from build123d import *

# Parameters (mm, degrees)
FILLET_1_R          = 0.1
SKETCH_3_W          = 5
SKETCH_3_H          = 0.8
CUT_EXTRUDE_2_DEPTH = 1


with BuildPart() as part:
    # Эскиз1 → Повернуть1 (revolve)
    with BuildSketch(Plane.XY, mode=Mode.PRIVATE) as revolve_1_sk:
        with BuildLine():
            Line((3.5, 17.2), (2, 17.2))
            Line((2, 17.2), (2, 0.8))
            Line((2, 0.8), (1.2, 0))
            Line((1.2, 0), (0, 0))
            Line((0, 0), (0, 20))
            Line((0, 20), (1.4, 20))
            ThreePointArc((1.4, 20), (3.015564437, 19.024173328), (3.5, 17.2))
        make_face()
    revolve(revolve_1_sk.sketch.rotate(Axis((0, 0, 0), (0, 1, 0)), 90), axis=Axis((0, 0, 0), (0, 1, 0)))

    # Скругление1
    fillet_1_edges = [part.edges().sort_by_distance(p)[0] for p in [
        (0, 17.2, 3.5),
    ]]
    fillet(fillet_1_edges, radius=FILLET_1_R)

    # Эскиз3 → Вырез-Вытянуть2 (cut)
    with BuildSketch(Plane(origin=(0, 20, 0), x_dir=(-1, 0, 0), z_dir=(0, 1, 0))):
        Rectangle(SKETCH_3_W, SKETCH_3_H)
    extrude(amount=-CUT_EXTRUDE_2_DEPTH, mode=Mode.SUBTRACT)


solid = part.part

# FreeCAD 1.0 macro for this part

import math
import FreeCAD as App
import Part
import Sketcher
from FreeCAD import Vector
Q = App.Units.Quantity


def edges_at(feature, points):
    """Names of the edges that pass closest to the given points."""
    edges = feature.Shape.Edges
    near = lambda p: min(range(len(edges)), key=lambda i: edges[i].distToShape(Part.Vertex(*p))[0])
    return sorted({f"Edge{near(p) + 1}" for p in points})

doc = App.newDocument("Part")
body = doc.addObject("PartDesign::Body", "Body")

# Sketch on XY plane
sketch1 = body.newObject("Sketcher::SketchObject", "Sketch")
sketch1.AttachmentSupport = (doc.getObject("XY_Plane"), [""])
sketch1.MapMode = "FlatFace"
sketch1.addGeometry([
    Part.LineSegment(Vector(2, 17.2, 0), Vector(3.5, 17.2, 0)),  # 0
    Part.ArcOfCircle(Part.Circle(Vector(1, 17.5, 0), Vector(0, 0, 1), 2.5), math.radians(-7), math.radians(81)),  # 1
    Part.LineSegment(Vector(1.4, 20, 0), Vector(0, 20, 0)),  # 2
    Part.LineSegment(Vector(0, 20, 0), Vector(0, 0, 0)),  # 3
    Part.LineSegment(Vector(0, 0, 0), Vector(1.2, 0, 0)),  # 4
    Part.LineSegment(Vector(1.2, 0, 0), Vector(2, 0.8, 0)),  # 5
    Part.LineSegment(Vector(2, 0.8, 0), Vector(2, 17.2, 0)),  # 6
], False)
sketch1.addConstraint([
    Sketcher.Constraint("Coincident", 0, 2, 1, 1),
    Sketcher.Constraint("Coincident", 1, 2, 2, 1),
    Sketcher.Constraint("Coincident", 2, 2, 3, 1),
    Sketcher.Constraint("Coincident", 3, 2, 4, 1),
    Sketcher.Constraint("Coincident", 4, 2, 5, 1),
    Sketcher.Constraint("Coincident", 5, 2, 6, 1),
    Sketcher.Constraint("Coincident", 6, 2, 0, 1),
    Sketcher.Constraint("Horizontal", 0),
    Sketcher.Constraint("Horizontal", 2),
    Sketcher.Constraint("Vertical", 3),
    Sketcher.Constraint("Horizontal", 4),
    Sketcher.Constraint("Vertical", 6),
    Sketcher.Constraint("Coincident", 3, 2, -1, 1),
    Sketcher.Constraint("DistanceY", 3, 2, 3, 1, Q("20 mm")),
    Sketcher.Constraint("Angle", 5, Q("45 deg")),
    Sketcher.Constraint("DistanceX", 0, 1, 0, 2, Q("1.5 mm")),
    Sketcher.Constraint("DistanceX", 2, 2, 2, 1, Q("1.4 mm")),
    Sketcher.Constraint("DistanceX", 4, 1, 4, 2, Q("1.2 mm")),
    Sketcher.Constraint("DistanceY", 6, 1, 6, 2, Q("16.4 mm")),
    Sketcher.Constraint("DistanceX", -1, 1, 1, 3, Q("1 mm")),
    Sketcher.Constraint("DistanceX", -1, 1, 5, 2, Q("2 mm")),
])
revolution = body.newObject("PartDesign::Revolution", "Revolution")
revolution.Profile = sketch1
revolution.ReferenceAxis = (sketch1, ["V_Axis"])
revolution.Angle = 360
doc.recompute()

fillet = body.newObject("PartDesign::Fillet", "Fillet")
fillet.Base = (revolution, edges_at(revolution, [(0, 17.2, 3.5)]))
fillet.Radius = 0.1

# Sketch on XZ plane
sketch2 = body.newObject("Sketcher::SketchObject", "Sketch001")
sketch2.AttachmentSupport = (doc.getObject("XZ_Plane"), [""])
sketch2.MapMode = "FlatFace"
sketch2.AttachmentOffset = App.Placement(Vector(0, 0, -20), App.Rotation())
sketch2.addGeometry([
    Part.LineSegment(Vector(2.5, 0.4, 0), Vector(2.5, -0.4, 0)),
    Part.LineSegment(Vector(2.5, -0.4, 0), Vector(-2.5, -0.4, 0)),
    Part.LineSegment(Vector(-2.5, -0.4, 0), Vector(-2.5, 0.4, 0)),
    Part.LineSegment(Vector(-2.5, 0.4, 0), Vector(2.5, 0.4, 0)),
], False)
sketch2.addConstraint([
    Sketcher.Constraint("Coincident", 0, 2, 1, 1),
    Sketcher.Constraint("Coincident", 1, 2, 2, 1),
    Sketcher.Constraint("Coincident", 2, 2, 3, 1),
    Sketcher.Constraint("Coincident", 3, 2, 0, 1),
    Sketcher.Constraint("Vertical", 0),
    Sketcher.Constraint("Horizontal", 1),
    Sketcher.Constraint("Vertical", 2),
    Sketcher.Constraint("Horizontal", 3),
    Sketcher.Constraint("Symmetric", 0, 2, 2, 2, -1, 1),
    Sketcher.Constraint("DistanceX", 1, 2, 1, 1, Q("5 mm")),
    Sketcher.Constraint("DistanceY", 0, 2, 0, 1, Q("0.8 mm")),
])
pocket1 = body.newObject("PartDesign::Pocket", "Pocket")
pocket1.Profile = sketch2
pocket1.Length = 1
pocket1.Reversed = True

doc.recompute()
